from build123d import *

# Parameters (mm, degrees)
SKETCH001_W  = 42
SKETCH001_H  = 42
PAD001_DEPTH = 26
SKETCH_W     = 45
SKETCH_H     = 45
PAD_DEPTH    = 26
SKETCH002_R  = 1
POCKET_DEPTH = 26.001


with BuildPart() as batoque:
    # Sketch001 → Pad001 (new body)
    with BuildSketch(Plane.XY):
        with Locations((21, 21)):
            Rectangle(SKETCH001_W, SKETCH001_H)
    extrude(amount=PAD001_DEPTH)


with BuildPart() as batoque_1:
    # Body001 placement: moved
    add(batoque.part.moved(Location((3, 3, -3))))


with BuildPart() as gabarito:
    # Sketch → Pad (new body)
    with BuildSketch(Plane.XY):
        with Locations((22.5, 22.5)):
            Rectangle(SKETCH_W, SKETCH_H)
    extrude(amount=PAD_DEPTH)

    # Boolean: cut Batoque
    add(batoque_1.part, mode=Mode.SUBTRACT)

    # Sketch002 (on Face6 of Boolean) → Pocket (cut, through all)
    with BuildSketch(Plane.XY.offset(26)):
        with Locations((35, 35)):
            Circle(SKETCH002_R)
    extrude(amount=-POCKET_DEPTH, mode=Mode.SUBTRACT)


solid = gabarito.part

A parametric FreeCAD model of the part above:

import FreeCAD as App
import Part
import Sketcher
from FreeCAD import Vector
Q = App.Units.Quantity

doc = App.newDocument("Part")
body = doc.addObject("PartDesign::Body", "Body")

sketch1 = body.newObject("Sketcher::SketchObject", "Sketch")
sketch1.AttachmentSupport = (doc.getObject("XY_Plane"), [""])
sketch1.MapMode = "FlatFace"
sketch1.addGeometry([
    Part.LineSegment(Vector(0, 42, 0), Vector(0, 0, 0)),
    Part.LineSegment(Vector(0, 0, 0), Vector(42, 0, 0)),
    Part.LineSegment(Vector(42, 0, 0), Vector(42, 42, 0)),
    Part.LineSegment(Vector(42, 42, 0), Vector(0, 42, 0)),
], False)
sketch1.addConstraint([
    Sketcher.Constraint("Coincident", 0, 2, 1, 1),
    Sketcher.Constraint("Coincident", 1, 2, 2, 1),
    Sketcher.Constraint("Coincident", 2, 2, 3, 1),
    Sketcher.Constraint("Coincident", 3, 2, 0, 1),
    Sketcher.Constraint("Vertical", 0),
    Sketcher.Constraint("Horizontal", 1),
    Sketcher.Constraint("Vertical", 2),
    Sketcher.Constraint("Horizontal", 3),
    Sketcher.Constraint("Coincident", 0, 2, -1, 1),
    Sketcher.Constraint("Equal", 3, 0),
    Sketcher.Constraint("DistanceX", 1, 1, 1, 2, Q("42 mm")),
])
pad1 = body.newObject("PartDesign::Pad", "Pad")
pad1.Profile = sketch1
pad1.Length = 26
body2 = doc.addObject("PartDesign::Body", "Body001")
doc.recompute()

body.Placement = App.Placement(Vector(3, 3, -3), App.Rotation(Vector(0, 0, 1), 0))
boolean = body2.newObject("PartDesign::Boolean", "Boolean")
boolean.Type = "Fuse"
boolean.addObjects([body])
body3 = doc.addObject("PartDesign::Body", "Body002")

sketch2 = body3.newObject("Sketcher::SketchObject", "Sketch001")
sketch2.AttachmentSupport = (doc.getObject("XY_Plane002"), [""])
sketch2.MapMode = "FlatFace"
sketch2.addGeometry([
    Part.LineSegment(Vector(0, 45, 0), Vector(0, 0, 0)),
    Part.LineSegment(Vector(0, 0, 0), Vector(45, 0, 0)),
    Part.LineSegment(Vector(45, 0, 0), Vector(45, 45, 0)),
    Part.LineSegment(Vector(45, 45, 0), Vector(0, 45, 0)),
], False)
sketch2.addConstraint([
    Sketcher.Constraint("Coincident", 0, 2, 1, 1),
    Sketcher.Constraint("Coincident", 1, 2, 2, 1),
    Sketcher.Constraint("Coincident", 2, 2, 3, 1),
    Sketcher.Constraint("Coincident", 3, 2, 0, 1),
    Sketcher.Constraint("Vertical", 0),
    Sketcher.Constraint("Horizontal", 1),
    Sketcher.Constraint("Vertical", 2),
    Sketcher.Constraint("Horizontal", 3),
    Sketcher.Constraint("Coincident", 0, 2, -1, 1),
    Sketcher.Constraint("Equal", 3, 0),
    Sketcher.Constraint("DistanceX", 1, 1, 1, 2, Q("45 mm")),
])
pad2 = body3.newObject("PartDesign::Pad", "Pad001")
pad2.Profile = sketch2
pad2.Length = 26
doc.recompute()

boolean2 = body3.newObject("PartDesign::Boolean", "Boolean001")
boolean2.Type = "Cut"
boolean2.addObjects([body2])

sketch3 = body3.newObject("Sketcher::SketchObject", "Sketch002")
sketch3.AttachmentSupport = (doc.getObject("XY_Plane002"), [""])
sketch3.MapMode = "FlatFace"
sketch3.AttachmentOffset = App.Placement(Vector(0, 0, 26), App.Rotation())
sketch3.addGeometry(Part.Circle(Vector(35, 35, 0), Vector(0, 0, 1), 1), False)
sketch3.addConstraint([
    Sketcher.Constraint("Diameter", 0, Q("2 mm")),
    Sketcher.Constraint("DistanceX", -1, 1, 0, 3, Q("35 mm")),
    Sketcher.Constraint("DistanceY", -1, 1, 0, 3, Q("35 mm")),
])
pocket1 = body3.newObject("PartDesign::Pocket", "Pocket")
pocket1.Profile = sketch3
pocket1.Type = "ThroughAll"

doc.recompute()
